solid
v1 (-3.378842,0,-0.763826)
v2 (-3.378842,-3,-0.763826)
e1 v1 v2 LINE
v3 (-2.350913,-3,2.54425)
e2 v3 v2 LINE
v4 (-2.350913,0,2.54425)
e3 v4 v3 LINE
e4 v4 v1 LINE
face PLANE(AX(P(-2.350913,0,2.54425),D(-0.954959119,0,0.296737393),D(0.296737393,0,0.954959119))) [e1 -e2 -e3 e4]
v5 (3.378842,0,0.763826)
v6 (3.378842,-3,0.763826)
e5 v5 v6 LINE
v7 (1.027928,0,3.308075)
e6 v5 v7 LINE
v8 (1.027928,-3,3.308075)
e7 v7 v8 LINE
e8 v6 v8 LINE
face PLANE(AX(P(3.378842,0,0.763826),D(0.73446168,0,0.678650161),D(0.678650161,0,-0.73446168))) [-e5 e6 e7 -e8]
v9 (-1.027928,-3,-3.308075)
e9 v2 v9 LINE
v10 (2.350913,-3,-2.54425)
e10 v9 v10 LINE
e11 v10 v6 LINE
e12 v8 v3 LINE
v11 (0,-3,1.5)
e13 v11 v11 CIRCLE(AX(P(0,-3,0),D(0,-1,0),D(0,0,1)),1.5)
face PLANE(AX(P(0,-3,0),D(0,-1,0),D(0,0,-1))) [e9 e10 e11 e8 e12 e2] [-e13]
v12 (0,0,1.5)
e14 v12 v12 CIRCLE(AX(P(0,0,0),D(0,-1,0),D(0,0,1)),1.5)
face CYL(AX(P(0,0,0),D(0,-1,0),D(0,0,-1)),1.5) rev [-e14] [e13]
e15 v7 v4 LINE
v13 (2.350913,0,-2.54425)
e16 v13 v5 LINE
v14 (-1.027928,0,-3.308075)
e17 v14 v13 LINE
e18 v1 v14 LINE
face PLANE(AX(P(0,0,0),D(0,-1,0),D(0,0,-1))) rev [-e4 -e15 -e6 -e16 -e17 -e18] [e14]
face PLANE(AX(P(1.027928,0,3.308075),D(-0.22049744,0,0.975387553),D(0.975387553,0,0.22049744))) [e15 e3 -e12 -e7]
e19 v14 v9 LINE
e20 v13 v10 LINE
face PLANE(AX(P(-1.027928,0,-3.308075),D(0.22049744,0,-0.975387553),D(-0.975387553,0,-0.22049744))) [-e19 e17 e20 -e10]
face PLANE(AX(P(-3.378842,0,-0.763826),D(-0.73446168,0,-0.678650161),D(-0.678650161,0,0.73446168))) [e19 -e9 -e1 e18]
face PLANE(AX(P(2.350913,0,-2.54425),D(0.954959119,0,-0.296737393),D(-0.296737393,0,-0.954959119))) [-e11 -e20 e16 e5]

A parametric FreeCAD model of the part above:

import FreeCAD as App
import Part
import Sketcher


def add_polygon(sketch, points):
    """Adds a closed chain of lines whose ends are joined by coincident constraints."""
    first, n = sketch.GeometryCount, len(points)
    for a, b in zip(points, points[1:] + points[:1]):
        sketch.addGeometry(Part.LineSegment(App.Vector(*a, 0), App.Vector(*b, 0)), False)
    for i in range(n):
        sketch.addConstraint(Sketcher.Constraint("Coincident", first + i, 2, first + (i + 1) % n, 1))

doc = App.newDocument("Part")
body = doc.addObject("PartDesign::Body", "Body")

sketch1 = body.newObject("Sketcher::SketchObject", "Sketch")
sketch1.AttachmentSupport = (doc.getObject("XZ_Plane"), [""])
sketch1.MapMode = "FlatFace"
sketch1.AttachmentOffset = App.Placement(App.Vector(0, 0, 3), App.Rotation())
add_polygon(sketch1, [(2.350913, -2.54425), (3.378842, 0.763826), (1.027928, 3.308075), (-2.350913, 2.54425), (-3.378842, -0.763826), (-1.027928, -3.308075)])
sketch1.addGeometry(Part.Circle(App.Vector(0, 0, 0), App.Vector(0, 0, 1), 1.5), False)
sketch1.addConstraint([
    Sketcher.Constraint("Coincident", 6, 3, -1, 1),
    Sketcher.Constraint("Symmetric", 0, 2, 3, 2, -1, 1),
    Sketcher.Constraint("Symmetric", 1, 2, 4, 2, -1, 1),
    Sketcher.Constraint("Symmetric", 2, 2, 5, 2, -1, 1),
    Sketcher.Constraint("Equal", 0, 1),
    Sketcher.Constraint("Equal", 1, 2),
    Sketcher.Constraint("Diameter", 6, 3.0),
    Sketcher.Constraint("Distance", 0, 3.464102),
    Sketcher.Constraint("DistanceY", 3, 2, 1, 2, 4.071901),
    Sketcher.Constraint("DistanceX", -1, 1, 0, 2, 3.378842),
    Sketcher.Constraint("DistanceX", -1, 1, 1, 2, 1.027928),
])
pad1 = body.newObject("PartDesign::Pad", "Pad")
pad1.Profile = sketch1
pad1.Length = 3
pad1.Reversed = True

doc.recompute()
